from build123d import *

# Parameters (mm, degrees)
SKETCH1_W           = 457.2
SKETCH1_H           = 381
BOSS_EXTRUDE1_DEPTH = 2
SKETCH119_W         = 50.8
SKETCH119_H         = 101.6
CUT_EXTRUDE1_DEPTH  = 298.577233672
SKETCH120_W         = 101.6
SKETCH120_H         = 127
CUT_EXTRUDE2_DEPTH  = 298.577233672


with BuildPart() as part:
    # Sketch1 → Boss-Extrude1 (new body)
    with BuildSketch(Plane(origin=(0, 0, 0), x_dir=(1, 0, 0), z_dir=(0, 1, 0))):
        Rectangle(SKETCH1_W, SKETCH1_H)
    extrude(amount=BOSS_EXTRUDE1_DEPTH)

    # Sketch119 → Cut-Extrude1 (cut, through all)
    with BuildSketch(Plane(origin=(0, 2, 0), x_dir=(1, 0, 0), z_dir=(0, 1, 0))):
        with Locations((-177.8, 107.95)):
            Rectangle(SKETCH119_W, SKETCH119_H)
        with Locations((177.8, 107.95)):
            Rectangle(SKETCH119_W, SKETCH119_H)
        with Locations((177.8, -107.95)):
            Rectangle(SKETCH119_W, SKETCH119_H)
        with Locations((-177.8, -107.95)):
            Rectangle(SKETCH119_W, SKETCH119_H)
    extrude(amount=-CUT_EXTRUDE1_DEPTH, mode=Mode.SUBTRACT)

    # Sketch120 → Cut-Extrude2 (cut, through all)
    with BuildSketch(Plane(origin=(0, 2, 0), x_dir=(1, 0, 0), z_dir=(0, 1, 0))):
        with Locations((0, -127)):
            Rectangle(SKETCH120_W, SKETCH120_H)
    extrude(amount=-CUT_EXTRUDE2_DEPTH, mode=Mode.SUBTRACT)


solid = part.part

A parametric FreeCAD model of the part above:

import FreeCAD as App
import Part
import Sketcher
from FreeCAD import Vector
Q = App.Units.Quantity

doc = App.newDocument("Part")
body = doc.addObject("PartDesign::Body", "Body")

# Sketch on XZ plane
sketch1 = body.newObject("Sketcher::SketchObject", "Sketch")
sketch1.AttachmentSupport = (doc.getObject("XZ_Plane"), [""])
sketch1.MapMode = "FlatFace"
sketch1.addGeometry(Part.LineSegment(Vector(-228.6, -190.5, 0), Vector(-228.6, 190.5, 0)), False)
sketch1.addGeometry(Part.LineSegment(Vector(-228.6, 190.5, 0), Vector(228.6, 190.5, 0)), False)
sketch1.addGeometry(Part.LineSegment(Vector(228.6, 190.5, 0), Vector(228.6, -190.5, 0)), False)
sketch1.addGeometry(Part.LineSegment(Vector(228.6, -190.5, 0), Vector(-228.6, -190.5, 0)), False)
sketch1.addConstraint(Sketcher.Constraint("Coincident", 0, 2, 1, 1))
sketch1.addConstraint(Sketcher.Constraint("Coincident", 1, 2, 2, 1))
sketch1.addConstraint(Sketcher.Constraint("Coincident", 2, 2, 3, 1))
sketch1.addConstraint(Sketcher.Constraint("Coincident", 3, 2, 0, 1))
sketch1.addConstraint(Sketcher.Constraint("Vertical", 0))
sketch1.addConstraint(Sketcher.Constraint("Horizontal", 1))
sketch1.addConstraint(Sketcher.Constraint("Vertical", 2))
sketch1.addConstraint(Sketcher.Constraint("Horizontal", 3))
sketch1.addConstraint(Sketcher.Constraint("Symmetric", 0, 2, 2, 2, -1, 1))
sketch1.addConstraint(Sketcher.Constraint("DistanceX", 1, 1, 1, 2, Q("18 in")))
sketch1.addConstraint(Sketcher.Constraint("DistanceY", 0, 1, 0, 2, Q("15 in")))
pad1 = body.newObject("PartDesign::Pad", "Pad")
pad1.Profile = sketch1
pad1.Length = 2
pad1.Reversed = True

# Sketch on XZ plane
sketch2 = body.newObject("Sketcher::SketchObject", "Sketch001")
sketch2.AttachmentSupport = (doc.getObject("XZ_Plane"), [""])
sketch2.MapMode = "FlatFace"
sketch2.AttachmentOffset = App.Placement(Vector(0, 0, -2), App.Rotation())
sketch2.addGeometry(Part.LineSegment(Vector(-203.2, -158.75, 0), Vector(-203.2, -57.15, 0)), False)
sketch2.addGeometry(Part.LineSegment(Vector(-203.2, -57.15, 0), Vector(-152.4, -57.15, 0)), False)
sketch2.addGeometry(Part.LineSegment(Vector(-152.4, -57.15, 0), Vector(-152.4, -158.75, 0)), False)
sketch2.addGeometry(Part.LineSegment(Vector(-152.4, -158.75, 0), Vector(-203.2, -158.75, 0)), False)
sketch2.addGeometry(Part.LineSegment(Vector(152.4, -158.75, 0), Vector(152.4, -57.15, 0)), False)
sketch2.addGeometry(Part.LineSegment(Vector(152.4, -57.15, 0), Vector(203.2, -57.15, 0)), False)
sketch2.addGeometry(Part.LineSegment(Vector(203.2, -57.15, 0), Vector(203.2, -158.75, 0)), False)
sketch2.addGeometry(Part.LineSegment(Vector(203.2, -158.75, 0), Vector(152.4, -158.75, 0)), False)
sketch2.addGeometry(Part.LineSegment(Vector(152.4, 57.15, 0), Vector(152.4, 158.75, 0)), False)
sketch2.addGeometry(Part.LineSegment(Vector(152.4, 158.75, 0), Vector(203.2, 158.75, 0)), False)
sketch2.addGeometry(Part.LineSegment(Vector(203.2, 158.75, 0), Vector(203.2, 57.15, 0)), False)
sketch2.addGeometry(Part.LineSegment(Vector(203.2, 57.15, 0), Vector(152.4, 57.15, 0)), False)
sketch2.addGeometry(Part.LineSegment(Vector(-203.2, 57.15, 0), Vector(-203.2, 158.75, 0)), False)
sketch2.addGeometry(Part.LineSegment(Vector(-203.2, 158.75, 0), Vector(-152.4, 158.75, 0)), False)
sketch2.addGeometry(Part.LineSegment(Vector(-152.4, 158.75, 0), Vector(-152.4, 57.15, 0)), False)
sketch2.addGeometry(Part.LineSegment(Vector(-152.4, 57.15, 0), Vector(-203.2, 57.15, 0)), False)
sketch2.addConstraint(Sketcher.Constraint("Coincident", 0, 2, 1, 1))
sketch2.addConstraint(Sketcher.Constraint("Coincident", 1, 2, 2, 1))
sketch2.addConstraint(Sketcher.Constraint("Coincident", 2, 2, 3, 1))
sketch2.addConstraint(Sketcher.Constraint("Coincident", 3, 2, 0, 1))
sketch2.addConstraint(Sketcher.Constraint("Coincident", 4, 2, 5, 1))
sketch2.addConstraint(Sketcher.Constraint("Coincident", 5, 2, 6, 1))
sketch2.addConstraint(Sketcher.Constraint("Coincident", 6, 2, 7, 1))
sketch2.addConstraint(Sketcher.Constraint("Coincident", 7, 2, 4, 1))
sketch2.addConstraint(Sketcher.Constraint("Coincident", 8, 2, 9, 1))
sketch2.addConstraint(Sketcher.Constraint("Coincident", 9, 2, 10, 1))
sketch2.addConstraint(Sketcher.Constraint("Coincident", 10, 2, 11, 1))
sketch2.addConstraint(Sketcher.Constraint("Coincident", 11, 2, 8, 1))
sketch2.addConstraint(Sketcher.Constraint("Coincident", 12, 2, 13, 1))
sketch2.addConstraint(Sketcher.Constraint("Coincident", 13, 2, 14, 1))
sketch2.addConstraint(Sketcher.Constraint("Coincident", 14, 2, 15, 1))
sketch2.addConstraint(Sketcher.Constraint("Coincident", 15, 2, 12, 1))
sketch2.addConstraint(Sketcher.Constraint("Vertical", 0))
sketch2.addConstraint(Sketcher.Constraint("Horizontal", 1))
sketch2.addConstraint(Sketcher.Constraint("Vertical", 2))
sketch2.addConstraint(Sketcher.Constraint("Horizontal", 3))
sketch2.addConstraint(Sketcher.Constraint("Vertical", 4))
sketch2.addConstraint(Sketcher.Constraint("Horizontal", 5))
sketch2.addConstraint(Sketcher.Constraint("Vertical", 6))
sketch2.addConstraint(Sketcher.Constraint("Horizontal", 7))
sketch2.addConstraint(Sketcher.Constraint("Vertical", 8))
sketch2.addConstraint(Sketcher.Constraint("Horizontal", 9))
sketch2.addConstraint(Sketcher.Constraint("Vertical", 10))
sketch2.addConstraint(Sketcher.Constraint("Horizontal", 11))
sketch2.addConstraint(Sketcher.Constraint("Vertical", 12))
sketch2.addConstraint(Sketcher.Constraint("Horizontal", 13))
sketch2.addConstraint(Sketcher.Constraint("Vertical", 14))
sketch2.addConstraint(Sketcher.Constraint("Horizontal", 15))
sketch2.addConstraint(Sketcher.Constraint("Symmetric", 2, 2, 8, 2, -1, 1))
sketch2.addConstraint(Sketcher.Constraint("Symmetric", 0, 2, 10, 2, -1, 1))
sketch2.addConstraint(Sketcher.Constraint("Symmetric", 6, 2, 12, 2, -1, 1))
sketch2.addConstraint(Sketcher.Constraint("Symmetric", 4, 2, 14, 2, -1, 1))
sketch2.addConstraint(Sketcher.Constraint("Symmetric", 1, 2, 4, 2, -2))
sketch2.addConstraint(Sketcher.Constraint("Symmetric", 3, 2, 6, 2, -2))
sketch2.addConstraint(Sketcher.Constraint("DistanceX", 1, 1, 1, 2, Q("2 in")))
sketch2.addConstraint(Sketcher.Constraint("DistanceY", 0, 1, 0, 2, Q("4 in")))
sketch2.addConstraint(Sketcher.Constraint("DistanceX", 0, 2, -1, 1, Q("8 in")))
sketch2.addConstraint(Sketcher.Constraint("DistanceY", 4, 2, 8, 2, Q("8.5 in")))
pocket1 = body.newObject("PartDesign::Pocket", "Pocket")
pocket1.Profile = sketch2
pocket1.Type = "ThroughAll"
pocket1.Reversed = True

# Sketch on XZ plane
sketch3 = body.newObject("Sketcher::SketchObject", "Sketch002")
sketch3.AttachmentSupport = (doc.getObject("XZ_Plane"), [""])
sketch3.MapMode = "FlatFace"
sketch3.AttachmentOffset = App.Placement(Vector(0, 0, -2), App.Rotation())
sketch3.addGeometry(Part.LineSegment(Vector(-50.8, 63.5, 0), Vector(-50.8, 190.5, 0)), False)
sketch3.addGeometry(Part.LineSegment(Vector(-50.8, 190.5, 0), Vector(50.8, 190.5, 0)), False)
sketch3.addGeometry(Part.LineSegment(Vector(50.8, 190.5, 0), Vector(50.8, 63.5, 0)), False)
sketch3.addGeometry(Part.LineSegment(Vector(50.8, 63.5, 0), Vector(-50.8, 63.5, 0)), False)
sketch3.addConstraint(Sketcher.Constraint("Coincident", 0, 2, 1, 1))
sketch3.addConstraint(Sketcher.Constraint("Coincident", 1, 2, 2, 1))
sketch3.addConstraint(Sketcher.Constraint("Coincident", 2, 2, 3, 1))
sketch3.addConstraint(Sketcher.Constraint("Coincident", 3, 2, 0, 1))
sketch3.addConstraint(Sketcher.Constraint("Vertical", 0))
sketch3.addConstraint(Sketcher.Constraint("Horizontal", 1))
sketch3.addConstraint(Sketcher.Constraint("Vertical", 2))
sketch3.addConstraint(Sketcher.Constraint("Horizontal", 3))
sketch3.addConstraint(Sketcher.Constraint("DistanceX", 1, 1, 1, 2, Q("4 in")))
sketch3.addConstraint(Sketcher.Constraint("DistanceY", 0, 1, 0, 2, Q("5 in")))
sketch3.addConstraint(Sketcher.Constraint("DistanceX", 0, 2, -1, 1, Q("2 in")))
sketch3.addConstraint(Sketcher.Constraint("DistanceY", -1, 1, 0, 2, Q("7.5 in")))
pocket2 = body.newObject("PartDesign::Pocket", "Pocket001")
pocket2.Profile = sketch3
pocket2.Type = "ThroughAll"
pocket2.Reversed = True

doc.recompute()
